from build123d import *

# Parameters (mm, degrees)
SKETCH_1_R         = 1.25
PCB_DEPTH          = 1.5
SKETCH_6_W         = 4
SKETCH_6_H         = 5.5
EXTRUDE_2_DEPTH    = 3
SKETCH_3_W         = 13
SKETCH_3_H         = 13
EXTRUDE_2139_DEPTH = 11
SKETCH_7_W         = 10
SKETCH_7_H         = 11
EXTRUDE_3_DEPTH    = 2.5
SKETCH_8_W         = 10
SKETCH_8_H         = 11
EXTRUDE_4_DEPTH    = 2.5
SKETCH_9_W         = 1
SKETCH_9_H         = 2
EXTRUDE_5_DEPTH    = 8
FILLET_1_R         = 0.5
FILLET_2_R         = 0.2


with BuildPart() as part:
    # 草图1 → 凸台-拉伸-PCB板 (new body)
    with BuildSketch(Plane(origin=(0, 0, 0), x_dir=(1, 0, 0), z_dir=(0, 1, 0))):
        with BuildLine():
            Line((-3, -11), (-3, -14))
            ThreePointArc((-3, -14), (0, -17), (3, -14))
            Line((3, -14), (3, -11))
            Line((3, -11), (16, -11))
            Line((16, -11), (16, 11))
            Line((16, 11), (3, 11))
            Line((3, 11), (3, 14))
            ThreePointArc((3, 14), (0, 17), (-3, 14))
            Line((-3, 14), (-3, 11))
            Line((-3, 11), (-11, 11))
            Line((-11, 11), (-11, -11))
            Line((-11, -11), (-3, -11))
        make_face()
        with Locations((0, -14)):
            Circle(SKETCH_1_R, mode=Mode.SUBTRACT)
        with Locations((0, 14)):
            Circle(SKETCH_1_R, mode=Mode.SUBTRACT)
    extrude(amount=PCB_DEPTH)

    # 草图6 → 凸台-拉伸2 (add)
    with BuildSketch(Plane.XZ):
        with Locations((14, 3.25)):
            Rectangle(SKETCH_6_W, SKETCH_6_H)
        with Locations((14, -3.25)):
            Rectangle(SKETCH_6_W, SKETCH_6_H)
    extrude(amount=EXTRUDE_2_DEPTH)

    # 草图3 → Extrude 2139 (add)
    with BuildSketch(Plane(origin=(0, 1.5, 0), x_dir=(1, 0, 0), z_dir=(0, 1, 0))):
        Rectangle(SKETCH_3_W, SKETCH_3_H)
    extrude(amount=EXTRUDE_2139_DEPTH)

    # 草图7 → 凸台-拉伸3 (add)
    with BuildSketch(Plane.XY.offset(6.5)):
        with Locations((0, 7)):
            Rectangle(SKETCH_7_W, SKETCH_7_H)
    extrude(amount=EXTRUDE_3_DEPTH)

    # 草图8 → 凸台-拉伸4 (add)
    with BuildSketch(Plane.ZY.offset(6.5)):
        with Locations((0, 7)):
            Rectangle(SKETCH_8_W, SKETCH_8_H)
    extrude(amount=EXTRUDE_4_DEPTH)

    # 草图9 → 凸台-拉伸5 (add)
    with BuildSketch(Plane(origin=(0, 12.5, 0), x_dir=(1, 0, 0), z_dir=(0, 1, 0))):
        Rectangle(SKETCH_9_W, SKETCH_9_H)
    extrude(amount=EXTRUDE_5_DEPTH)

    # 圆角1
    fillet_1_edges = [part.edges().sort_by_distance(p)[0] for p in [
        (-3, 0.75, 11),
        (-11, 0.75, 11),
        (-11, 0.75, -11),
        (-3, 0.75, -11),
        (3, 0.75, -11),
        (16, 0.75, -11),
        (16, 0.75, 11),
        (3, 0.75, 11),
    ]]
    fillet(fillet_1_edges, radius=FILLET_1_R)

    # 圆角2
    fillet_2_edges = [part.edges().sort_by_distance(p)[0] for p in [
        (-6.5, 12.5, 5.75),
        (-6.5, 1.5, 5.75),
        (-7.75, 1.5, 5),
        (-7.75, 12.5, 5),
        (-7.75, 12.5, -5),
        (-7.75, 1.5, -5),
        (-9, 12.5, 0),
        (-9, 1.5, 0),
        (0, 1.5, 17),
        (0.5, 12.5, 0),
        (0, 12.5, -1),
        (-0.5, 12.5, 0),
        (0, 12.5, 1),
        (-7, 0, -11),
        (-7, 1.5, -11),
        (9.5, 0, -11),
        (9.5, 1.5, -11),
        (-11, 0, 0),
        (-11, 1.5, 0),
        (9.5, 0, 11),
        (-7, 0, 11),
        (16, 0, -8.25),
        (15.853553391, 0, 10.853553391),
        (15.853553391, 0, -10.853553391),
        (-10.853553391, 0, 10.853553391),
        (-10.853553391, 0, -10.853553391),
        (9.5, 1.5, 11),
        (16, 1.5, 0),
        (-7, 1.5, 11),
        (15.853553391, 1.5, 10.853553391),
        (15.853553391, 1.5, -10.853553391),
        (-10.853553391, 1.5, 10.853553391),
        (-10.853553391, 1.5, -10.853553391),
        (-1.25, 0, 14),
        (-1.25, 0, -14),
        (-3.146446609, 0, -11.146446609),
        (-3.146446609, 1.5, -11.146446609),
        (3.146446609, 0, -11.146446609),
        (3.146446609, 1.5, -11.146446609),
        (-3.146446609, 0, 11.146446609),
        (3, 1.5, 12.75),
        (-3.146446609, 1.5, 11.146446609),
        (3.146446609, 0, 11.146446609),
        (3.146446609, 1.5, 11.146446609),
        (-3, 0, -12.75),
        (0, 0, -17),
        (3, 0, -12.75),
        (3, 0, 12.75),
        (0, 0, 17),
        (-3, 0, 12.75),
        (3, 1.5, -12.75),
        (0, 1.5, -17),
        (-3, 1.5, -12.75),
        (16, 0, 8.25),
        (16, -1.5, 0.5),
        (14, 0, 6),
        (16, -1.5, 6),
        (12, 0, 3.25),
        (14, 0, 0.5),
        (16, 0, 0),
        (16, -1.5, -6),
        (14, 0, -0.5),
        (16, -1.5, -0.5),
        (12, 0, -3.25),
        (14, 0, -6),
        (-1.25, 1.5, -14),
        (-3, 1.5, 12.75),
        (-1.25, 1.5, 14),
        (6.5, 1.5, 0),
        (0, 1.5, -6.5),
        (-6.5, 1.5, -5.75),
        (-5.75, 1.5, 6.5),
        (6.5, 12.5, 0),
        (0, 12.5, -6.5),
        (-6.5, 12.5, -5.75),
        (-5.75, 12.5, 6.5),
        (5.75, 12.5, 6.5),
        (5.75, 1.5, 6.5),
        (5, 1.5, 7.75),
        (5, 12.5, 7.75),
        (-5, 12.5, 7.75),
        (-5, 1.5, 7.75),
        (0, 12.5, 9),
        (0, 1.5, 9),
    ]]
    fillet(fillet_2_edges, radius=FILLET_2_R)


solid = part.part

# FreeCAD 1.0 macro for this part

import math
import FreeCAD as App
import Part
import Sketcher
from FreeCAD import Vector
Q = App.Units.Quantity


def edges_at(feature, points):
    """Names of the edges that pass closest to the given points."""
    edges = feature.Shape.Edges
    near = lambda p: min(range(len(edges)), key=lambda i: edges[i].distToShape(Part.Vertex(*p))[0])
    return sorted({f"Edge{near(p) + 1}" for p in points})


def add_polygon(sketch, points):
    """Adds a closed chain of lines whose ends are joined by coincident constraints."""
    first, n = sketch.GeometryCount, len(points)
    for a, b in zip(points, points[1:] + points[:1]):
        sketch.addGeometry(Part.LineSegment(App.Vector(*a, 0), App.Vector(*b, 0)), False)
    for i in range(n):
        sketch.addConstraint(Sketcher.Constraint("Coincident", first + i, 2, first + (i + 1) % n, 1))

doc = App.newDocument("Part")
body = doc.addObject("PartDesign::Body", "Body")

sketch1 = doc.addObject("Sketcher::SketchObject", "Sketch")
body.addObject(sketch1)
sketch1.AttachmentSupport = (doc.XZ_Plane, [""])
sketch1.MapMode = "FlatFace"
sketch1.addGeometry([
    Part.LineSegment(Vector(-3, 11, 0), Vector(-3, 14, 0)),
    Part.ArcOfCircle(Part.Circle(Vector(0, 14, 0), Vector(0, 0, 1), 3), math.radians(0), math.radians(180)),
    Part.LineSegment(Vector(3, 14, 0), Vector(3, 11, 0)),
    Part.LineSegment(Vector(3, 11, 0), Vector(16, 11, 0)),
    Part.LineSegment(Vector(16, 11, 0), Vector(16, -11, 0)),
    Part.LineSegment(Vector(16, -11, 0), Vector(3, -11, 0)),
    Part.LineSegment(Vector(3, -11, 0), Vector(3, -14, 0)),
    Part.ArcOfCircle(Part.Circle(Vector(0, -14, 0), Vector(0, 0, 1), 3), math.radians(180), math.radians(360)),
    Part.LineSegment(Vector(-3, -14, 0), Vector(-3, -11, 0)),
    Part.LineSegment(Vector(-3, -11, 0), Vector(-11, -11, 0)),
    Part.LineSegment(Vector(-11, -11, 0), Vector(-11, 11, 0)),
    Part.LineSegment(Vector(-11, 11, 0), Vector(-3, 11, 0)),
    Part.Circle(Vector(0, 14, 0), Vector(0, 0, 1), 1.25),
    Part.Circle(Vector(0, -14, 0), Vector(0, 0, 1), 1.25),
], False)
sketch1.addConstraint([
    Sketcher.Constraint("Tangent", 0, 2, 1, 2),
    Sketcher.Constraint("Tangent", 1, 1, 2, 1),
    Sketcher.Constraint("Coincident", 2, 2, 3, 1),
    Sketcher.Constraint("Coincident", 3, 2, 4, 1),
    Sketcher.Constraint("Coincident", 4, 2, 5, 1),
    Sketcher.Constraint("Coincident", 5, 2, 6, 1),
    Sketcher.Constraint("Tangent", 6, 2, 7, 2),
    Sketcher.Constraint("Tangent", 7, 1, 8, 1),
    Sketcher.Constraint("Coincident", 8, 2, 9, 1),
    Sketcher.Constraint("Coincident", 9, 2, 10, 1),
    Sketcher.Constraint("Coincident", 10, 2, 11, 1),
    Sketcher.Constraint("Coincident", 11, 2, 0, 1),
    Sketcher.Constraint("Vertical", 0),
    Sketcher.Constraint("Vertical", 2),
    Sketcher.Constraint("Horizontal", 3),
    Sketcher.Constraint("Vertical", 4),
    Sketcher.Constraint("Horizontal", 5),
    Sketcher.Constraint("Vertical", 6),
    Sketcher.Constraint("Vertical", 8),
    Sketcher.Constraint("Horizontal", 9),
    Sketcher.Constraint("Vertical", 10),
    Sketcher.Constraint("Horizontal", 11),
    Sketcher.Constraint("Coincident", 12, 3, 1, 3),
    Sketcher.Constraint("Coincident", 13, 3, 7, 3),
    Sketcher.Constraint("Equal", 1, 7),
    Sketcher.Constraint("Equal", 12, 13),
    Sketcher.Constraint("Symmetric", 1, 3, 7, 3, -1, 1),
    Sketcher.Constraint("Symmetric", 5, 2, 8, 2, -2),
    Sketcher.Constraint("Horizontal", 3, 2, 10, 2),
    Sketcher.Constraint("Equal", 2, 6),
    Sketcher.Constraint("Radius", 1, Q("3 mm")),
    Sketcher.Constraint("Diameter", 12, Q("2.5 mm")),
    Sketcher.Constraint("DistanceX", 3, 1, 3, 2, Q("13 mm")),
    Sketcher.Constraint("DistanceX", 9, 2, 9, 1, Q("8 mm")),
    Sketcher.Constraint("DistanceY", 0, 1, 0, 2, Q("3 mm")),
    Sketcher.Constraint("DistanceY", 4, 2, 4, 1, Q("22 mm")),
])
pad1 = doc.addObject("PartDesign::Pad", "Pad")
body.addObject(pad1)
pad1.Profile = sketch1
pad1.Length = 1.5
pad1.Reversed = True

sketch2 = doc.addObject("Sketcher::SketchObject", "Sketch001")
body.addObject(sketch2)
sketch2.AttachmentSupport = (doc.XZ_Plane, [""])
sketch2.MapMode = "FlatFace"
add_polygon(sketch2, [(12, 6), (12, 0.5), (16, 0.5), (16, 6)])
add_polygon(sketch2, [(12, -0.5), (12, -6), (16, -6), (16, -0.5)])
sketch2.addConstraint([
    Sketcher.Constraint("Vertical", 0),
    Sketcher.Constraint("Horizontal", 1),
    Sketcher.Constraint("Vertical", 2),
    Sketcher.Constraint("Horizontal", 3),
    Sketcher.Constraint("Vertical", 4),
    Sketcher.Constraint("Horizontal", 5),
    Sketcher.Constraint("Vertical", 6),
    Sketcher.Constraint("Horizontal", 7),
    Sketcher.Constraint("Symmetric", 3, 2, 4, 2, -1),
    Sketcher.Constraint("Symmetric", 1, 2, 6, 2, -1),
    Sketcher.Constraint("DistanceX", 1, 1, 1, 2, Q("4 mm")),
    Sketcher.Constraint("DistanceY", 0, 2, 0, 1, Q("5.5 mm")),
    Sketcher.Constraint("DistanceX", -1, 1, 0, 2, Q("12 mm")),
    Sketcher.Constraint("DistanceY", -1, 1, 2, 2, Q("6 mm")),
])
pad2 = doc.addObject("PartDesign::Pad", "Pad001")
body.addObject(pad2)
pad2.Profile = sketch2
pad2.Length = 3

sketch3 = doc.addObject("Sketcher::SketchObject", "Sketch002")
body.addObject(sketch3)
sketch3.AttachmentSupport = (doc.XZ_Plane, [""])
sketch3.MapMode = "FlatFace"
sketch3.AttachmentOffset = App.Placement(Vector(0, 0, -1.5), App.Rotation())
add_polygon(sketch3, [(-6.5, -6.5), (-6.5, 6.5), (6.5, 6.5), (6.5, -6.5)])
sketch3.addConstraint([
    Sketcher.Constraint("Vertical", 0),
    Sketcher.Constraint("Horizontal", 1),
    Sketcher.Constraint("Vertical", 2),
    Sketcher.Constraint("Horizontal", 3),
    Sketcher.Constraint("Symmetric", 0, 2, 2, 2, -1, 1),
    Sketcher.Constraint("Equal", 3, 0),
    Sketcher.Constraint("DistanceX", 1, 1, 1, 2, Q("13 mm")),
])
pad3 = doc.addObject("PartDesign::Pad", "Pad002")
body.addObject(pad3)
pad3.Profile = sketch3
pad3.Length = 11
pad3.Reversed = True

sketch4 = doc.addObject("Sketcher::SketchObject", "Sketch003")
body.addObject(sketch4)
sketch4.AttachmentSupport = (doc.XY_Plane, [""])
sketch4.MapMode = "FlatFace"
sketch4.AttachmentOffset = App.Placement(Vector(0, 0, 6.5), App.Rotation())
add_polygon(sketch4, [(-5, 12.5), (-5, 1.5), (5, 1.5), (5, 12.5)])
sketch4.addConstraint([
    Sketcher.Constraint("Vertical", 0),
    Sketcher.Constraint("Horizontal", 1),
    Sketcher.Constraint("Vertical", 2),
    Sketcher.Constraint("Horizontal", 3),
    Sketcher.Constraint("DistanceX", 1, 1, 1, 2, Q("10 mm")),
    Sketcher.Constraint("DistanceY", 0, 2, 0, 1, Q("11 mm")),
    Sketcher.Constraint("DistanceX", 0, 2, -1, 1, Q("5 mm")),
    Sketcher.Constraint("DistanceY", -1, 1, 0, 2, Q("1.5 mm")),
])
pad4 = doc.addObject("PartDesign::Pad", "Pad003")
body.addObject(pad4)
pad4.Profile = sketch4
pad4.Length = 2.5

sketch5 = doc.addObject("Sketcher::SketchObject", "Sketch004")
body.addObject(sketch5)
sketch5.AttachmentSupport = (doc.YZ_Plane, [""])
sketch5.MapMode = "FlatFace"
sketch5.AttachmentOffset = App.Placement(Vector(0, 0, -6.5), App.Rotation())
add_polygon(sketch5, [(12.5, -5), (1.5, -5), (1.5, 5), (12.5, 5)])
sketch5.addConstraint([
    Sketcher.Constraint("Horizontal", 0),
    Sketcher.Constraint("Vertical", 1),
    Sketcher.Constraint("Horizontal", 2),
    Sketcher.Constraint("Vertical", 3),
    Sketcher.Constraint("DistanceX", 0, 2, 0, 1, Q("11 mm")),
    Sketcher.Constraint("DistanceY", 1, 1, 1, 2, Q("10 mm")),
    Sketcher.Constraint("DistanceY", 0, 2, -1, 1, Q("5 mm")),
    Sketcher.Constraint("DistanceX", -1, 1, 0, 2, Q("1.5 mm")),
])
pad5 = doc.addObject("PartDesign::Pad", "Pad004")
body.addObject(pad5)
pad5.Profile = sketch5
pad5.Length = 2.5
pad5.Reversed = True

sketch6 = doc.addObject("Sketcher::SketchObject", "Sketch005")
body.addObject(sketch6)
sketch6.AttachmentSupport = (doc.XZ_Plane, [""])
sketch6.MapMode = "FlatFace"
sketch6.AttachmentOffset = App.Placement(Vector(0, 0, -12.5), App.Rotation())
add_polygon(sketch6, [(-0.5, -1), (-0.5, 1), (0.5, 1), (0.5, -1)])
sketch6.addConstraint([
    Sketcher.Constraint("Vertical", 0),
    Sketcher.Constraint("Horizontal", 1),
    Sketcher.Constraint("Vertical", 2),
    Sketcher.Constraint("Horizontal", 3),
    Sketcher.Constraint("Symmetric", 0, 2, 2, 2, -1, 1),
    Sketcher.Constraint("DistanceX", 1, 1, 1, 2, Q("1 mm")),
    Sketcher.Constraint("DistanceY", 0, 1, 0, 2, Q("2 mm")),
])
pad6 = doc.addObject("PartDesign::Pad", "Pad005")
body.addObject(pad6)
pad6.Profile = sketch6
pad6.Length = 8
pad6.Reversed = True
doc.recompute()

fillet = doc.addObject("PartDesign::Fillet", "Fillet")
body.addObject(fillet)
fillet.Base = (pad6, edges_at(pad6, [
    (-3, 0.75, 11),
    (-11, 0.75, 11),
    (-11, 0.75, -11),
    (-3, 0.75, -11),
    (3, 0.75, -11),
    (16, 0.75, -11),
    (16, 0.75, 11),
    (3, 0.75, 11),
]))
fillet.Radius = 0.5
doc.recompute()

fillet2 = doc.addObject("PartDesign::Fillet", "Fillet001")
body.addObject(fillet2)
fillet2.Base = (fillet, edges_at(fillet, [
    (-6.5, 12.5, 5.75),
    (-6.5, 1.5, 5.75),
    (-7.75, 1.5, 5),
    (-7.75, 12.5, 5),
    (-7.75, 12.5, -5),
    (-7.75, 1.5, -5),
    (-9, 12.5, 0),
    (-9, 1.5, 0),
    (0, 1.5, 17),
    (0.5, 12.5, 0),
    (0, 12.5, -1),
    (-0.5, 12.5, 0),
    (0, 12.5, 1),
    (-7, 0, -11),
    (-7, 1.5, -11),
    (9.5, 0, -11),
    (9.5, 1.5, -11),
    (-11, 0, 0),
    (-11, 1.5, 0),
    (9.5, 0, 11),
    (-7, 0, 11),
    (16, 0, -8.25),
    (15.854, 0, 10.854),
    (15.854, 0, -10.854),
    (-10.854, 0, 10.854),
    (-10.854, 0, -10.854),
    (9.5, 1.5, 11),
    (16, 1.5, 0),
    (-7, 1.5, 11),
    (15.854, 1.5, 10.854),
    (15.854, 1.5, -10.854),
    (-10.854, 1.5, 10.854),
    (-10.854, 1.5, -10.854),
    (-1.25, 0, 14),
    (-1.25, 0, -14),
    (-3.146, 0, -11.146),
    (-3.146, 1.5, -11.146),
    (3.146, 0, -11.146),
    (3.146, 1.5, -11.146),
    (-3.146, 0, 11.146),
    (3, 1.5, 12.75),
    (-3.146, 1.5, 11.146),
    (3.146, 0, 11.146),
    (3.146, 1.5, 11.146),
    (-3, 0, -12.75),
    (0, 0, -17),
    (3, 0, -12.75),
    (3, 0, 12.75),
    (0, 0, 17),
    (-3, 0, 12.75),
    (3, 1.5, -12.75),
    (0, 1.5, -17),
    (-3, 1.5, -12.75),
    (16, 0, 8.25),
    (16, -1.5, 0.5),
    (14, 0, 6),
    (16, -1.5, 6),
    (12, 0, 3.25),
    (14, 0, 0.5),
    (16, 0, 0),
    (16, -1.5, -6),
    (14, 0, -0.5),
    (16, -1.5, -0.5),
    (12, 0, -3.25),
    (14, 0, -6),
    (-1.25, 1.5, -14),
    (-3, 1.5, 12.75),
    (-1.25, 1.5, 14),
    (6.5, 1.5, 0),
    (0, 1.5, -6.5),
    (-6.5, 1.5, -5.75),
    (-5.75, 1.5, 6.5),
    (6.5, 12.5, 0),
    (0, 12.5, -6.5),
    (-6.5, 12.5, -5.75),
    (-5.75, 12.5, 6.5),
    (5.75, 12.5, 6.5),
    (5.75, 1.5, 6.5),
    (5, 1.5, 7.75),
    (5, 12.5, 7.75),
    (-5, 12.5, 7.75),
    (-5, 1.5, 7.75),
    (0, 12.5, 9),
    (0, 1.5, 9),
]))
fillet2.Radius = 0.2

doc.recompute()
